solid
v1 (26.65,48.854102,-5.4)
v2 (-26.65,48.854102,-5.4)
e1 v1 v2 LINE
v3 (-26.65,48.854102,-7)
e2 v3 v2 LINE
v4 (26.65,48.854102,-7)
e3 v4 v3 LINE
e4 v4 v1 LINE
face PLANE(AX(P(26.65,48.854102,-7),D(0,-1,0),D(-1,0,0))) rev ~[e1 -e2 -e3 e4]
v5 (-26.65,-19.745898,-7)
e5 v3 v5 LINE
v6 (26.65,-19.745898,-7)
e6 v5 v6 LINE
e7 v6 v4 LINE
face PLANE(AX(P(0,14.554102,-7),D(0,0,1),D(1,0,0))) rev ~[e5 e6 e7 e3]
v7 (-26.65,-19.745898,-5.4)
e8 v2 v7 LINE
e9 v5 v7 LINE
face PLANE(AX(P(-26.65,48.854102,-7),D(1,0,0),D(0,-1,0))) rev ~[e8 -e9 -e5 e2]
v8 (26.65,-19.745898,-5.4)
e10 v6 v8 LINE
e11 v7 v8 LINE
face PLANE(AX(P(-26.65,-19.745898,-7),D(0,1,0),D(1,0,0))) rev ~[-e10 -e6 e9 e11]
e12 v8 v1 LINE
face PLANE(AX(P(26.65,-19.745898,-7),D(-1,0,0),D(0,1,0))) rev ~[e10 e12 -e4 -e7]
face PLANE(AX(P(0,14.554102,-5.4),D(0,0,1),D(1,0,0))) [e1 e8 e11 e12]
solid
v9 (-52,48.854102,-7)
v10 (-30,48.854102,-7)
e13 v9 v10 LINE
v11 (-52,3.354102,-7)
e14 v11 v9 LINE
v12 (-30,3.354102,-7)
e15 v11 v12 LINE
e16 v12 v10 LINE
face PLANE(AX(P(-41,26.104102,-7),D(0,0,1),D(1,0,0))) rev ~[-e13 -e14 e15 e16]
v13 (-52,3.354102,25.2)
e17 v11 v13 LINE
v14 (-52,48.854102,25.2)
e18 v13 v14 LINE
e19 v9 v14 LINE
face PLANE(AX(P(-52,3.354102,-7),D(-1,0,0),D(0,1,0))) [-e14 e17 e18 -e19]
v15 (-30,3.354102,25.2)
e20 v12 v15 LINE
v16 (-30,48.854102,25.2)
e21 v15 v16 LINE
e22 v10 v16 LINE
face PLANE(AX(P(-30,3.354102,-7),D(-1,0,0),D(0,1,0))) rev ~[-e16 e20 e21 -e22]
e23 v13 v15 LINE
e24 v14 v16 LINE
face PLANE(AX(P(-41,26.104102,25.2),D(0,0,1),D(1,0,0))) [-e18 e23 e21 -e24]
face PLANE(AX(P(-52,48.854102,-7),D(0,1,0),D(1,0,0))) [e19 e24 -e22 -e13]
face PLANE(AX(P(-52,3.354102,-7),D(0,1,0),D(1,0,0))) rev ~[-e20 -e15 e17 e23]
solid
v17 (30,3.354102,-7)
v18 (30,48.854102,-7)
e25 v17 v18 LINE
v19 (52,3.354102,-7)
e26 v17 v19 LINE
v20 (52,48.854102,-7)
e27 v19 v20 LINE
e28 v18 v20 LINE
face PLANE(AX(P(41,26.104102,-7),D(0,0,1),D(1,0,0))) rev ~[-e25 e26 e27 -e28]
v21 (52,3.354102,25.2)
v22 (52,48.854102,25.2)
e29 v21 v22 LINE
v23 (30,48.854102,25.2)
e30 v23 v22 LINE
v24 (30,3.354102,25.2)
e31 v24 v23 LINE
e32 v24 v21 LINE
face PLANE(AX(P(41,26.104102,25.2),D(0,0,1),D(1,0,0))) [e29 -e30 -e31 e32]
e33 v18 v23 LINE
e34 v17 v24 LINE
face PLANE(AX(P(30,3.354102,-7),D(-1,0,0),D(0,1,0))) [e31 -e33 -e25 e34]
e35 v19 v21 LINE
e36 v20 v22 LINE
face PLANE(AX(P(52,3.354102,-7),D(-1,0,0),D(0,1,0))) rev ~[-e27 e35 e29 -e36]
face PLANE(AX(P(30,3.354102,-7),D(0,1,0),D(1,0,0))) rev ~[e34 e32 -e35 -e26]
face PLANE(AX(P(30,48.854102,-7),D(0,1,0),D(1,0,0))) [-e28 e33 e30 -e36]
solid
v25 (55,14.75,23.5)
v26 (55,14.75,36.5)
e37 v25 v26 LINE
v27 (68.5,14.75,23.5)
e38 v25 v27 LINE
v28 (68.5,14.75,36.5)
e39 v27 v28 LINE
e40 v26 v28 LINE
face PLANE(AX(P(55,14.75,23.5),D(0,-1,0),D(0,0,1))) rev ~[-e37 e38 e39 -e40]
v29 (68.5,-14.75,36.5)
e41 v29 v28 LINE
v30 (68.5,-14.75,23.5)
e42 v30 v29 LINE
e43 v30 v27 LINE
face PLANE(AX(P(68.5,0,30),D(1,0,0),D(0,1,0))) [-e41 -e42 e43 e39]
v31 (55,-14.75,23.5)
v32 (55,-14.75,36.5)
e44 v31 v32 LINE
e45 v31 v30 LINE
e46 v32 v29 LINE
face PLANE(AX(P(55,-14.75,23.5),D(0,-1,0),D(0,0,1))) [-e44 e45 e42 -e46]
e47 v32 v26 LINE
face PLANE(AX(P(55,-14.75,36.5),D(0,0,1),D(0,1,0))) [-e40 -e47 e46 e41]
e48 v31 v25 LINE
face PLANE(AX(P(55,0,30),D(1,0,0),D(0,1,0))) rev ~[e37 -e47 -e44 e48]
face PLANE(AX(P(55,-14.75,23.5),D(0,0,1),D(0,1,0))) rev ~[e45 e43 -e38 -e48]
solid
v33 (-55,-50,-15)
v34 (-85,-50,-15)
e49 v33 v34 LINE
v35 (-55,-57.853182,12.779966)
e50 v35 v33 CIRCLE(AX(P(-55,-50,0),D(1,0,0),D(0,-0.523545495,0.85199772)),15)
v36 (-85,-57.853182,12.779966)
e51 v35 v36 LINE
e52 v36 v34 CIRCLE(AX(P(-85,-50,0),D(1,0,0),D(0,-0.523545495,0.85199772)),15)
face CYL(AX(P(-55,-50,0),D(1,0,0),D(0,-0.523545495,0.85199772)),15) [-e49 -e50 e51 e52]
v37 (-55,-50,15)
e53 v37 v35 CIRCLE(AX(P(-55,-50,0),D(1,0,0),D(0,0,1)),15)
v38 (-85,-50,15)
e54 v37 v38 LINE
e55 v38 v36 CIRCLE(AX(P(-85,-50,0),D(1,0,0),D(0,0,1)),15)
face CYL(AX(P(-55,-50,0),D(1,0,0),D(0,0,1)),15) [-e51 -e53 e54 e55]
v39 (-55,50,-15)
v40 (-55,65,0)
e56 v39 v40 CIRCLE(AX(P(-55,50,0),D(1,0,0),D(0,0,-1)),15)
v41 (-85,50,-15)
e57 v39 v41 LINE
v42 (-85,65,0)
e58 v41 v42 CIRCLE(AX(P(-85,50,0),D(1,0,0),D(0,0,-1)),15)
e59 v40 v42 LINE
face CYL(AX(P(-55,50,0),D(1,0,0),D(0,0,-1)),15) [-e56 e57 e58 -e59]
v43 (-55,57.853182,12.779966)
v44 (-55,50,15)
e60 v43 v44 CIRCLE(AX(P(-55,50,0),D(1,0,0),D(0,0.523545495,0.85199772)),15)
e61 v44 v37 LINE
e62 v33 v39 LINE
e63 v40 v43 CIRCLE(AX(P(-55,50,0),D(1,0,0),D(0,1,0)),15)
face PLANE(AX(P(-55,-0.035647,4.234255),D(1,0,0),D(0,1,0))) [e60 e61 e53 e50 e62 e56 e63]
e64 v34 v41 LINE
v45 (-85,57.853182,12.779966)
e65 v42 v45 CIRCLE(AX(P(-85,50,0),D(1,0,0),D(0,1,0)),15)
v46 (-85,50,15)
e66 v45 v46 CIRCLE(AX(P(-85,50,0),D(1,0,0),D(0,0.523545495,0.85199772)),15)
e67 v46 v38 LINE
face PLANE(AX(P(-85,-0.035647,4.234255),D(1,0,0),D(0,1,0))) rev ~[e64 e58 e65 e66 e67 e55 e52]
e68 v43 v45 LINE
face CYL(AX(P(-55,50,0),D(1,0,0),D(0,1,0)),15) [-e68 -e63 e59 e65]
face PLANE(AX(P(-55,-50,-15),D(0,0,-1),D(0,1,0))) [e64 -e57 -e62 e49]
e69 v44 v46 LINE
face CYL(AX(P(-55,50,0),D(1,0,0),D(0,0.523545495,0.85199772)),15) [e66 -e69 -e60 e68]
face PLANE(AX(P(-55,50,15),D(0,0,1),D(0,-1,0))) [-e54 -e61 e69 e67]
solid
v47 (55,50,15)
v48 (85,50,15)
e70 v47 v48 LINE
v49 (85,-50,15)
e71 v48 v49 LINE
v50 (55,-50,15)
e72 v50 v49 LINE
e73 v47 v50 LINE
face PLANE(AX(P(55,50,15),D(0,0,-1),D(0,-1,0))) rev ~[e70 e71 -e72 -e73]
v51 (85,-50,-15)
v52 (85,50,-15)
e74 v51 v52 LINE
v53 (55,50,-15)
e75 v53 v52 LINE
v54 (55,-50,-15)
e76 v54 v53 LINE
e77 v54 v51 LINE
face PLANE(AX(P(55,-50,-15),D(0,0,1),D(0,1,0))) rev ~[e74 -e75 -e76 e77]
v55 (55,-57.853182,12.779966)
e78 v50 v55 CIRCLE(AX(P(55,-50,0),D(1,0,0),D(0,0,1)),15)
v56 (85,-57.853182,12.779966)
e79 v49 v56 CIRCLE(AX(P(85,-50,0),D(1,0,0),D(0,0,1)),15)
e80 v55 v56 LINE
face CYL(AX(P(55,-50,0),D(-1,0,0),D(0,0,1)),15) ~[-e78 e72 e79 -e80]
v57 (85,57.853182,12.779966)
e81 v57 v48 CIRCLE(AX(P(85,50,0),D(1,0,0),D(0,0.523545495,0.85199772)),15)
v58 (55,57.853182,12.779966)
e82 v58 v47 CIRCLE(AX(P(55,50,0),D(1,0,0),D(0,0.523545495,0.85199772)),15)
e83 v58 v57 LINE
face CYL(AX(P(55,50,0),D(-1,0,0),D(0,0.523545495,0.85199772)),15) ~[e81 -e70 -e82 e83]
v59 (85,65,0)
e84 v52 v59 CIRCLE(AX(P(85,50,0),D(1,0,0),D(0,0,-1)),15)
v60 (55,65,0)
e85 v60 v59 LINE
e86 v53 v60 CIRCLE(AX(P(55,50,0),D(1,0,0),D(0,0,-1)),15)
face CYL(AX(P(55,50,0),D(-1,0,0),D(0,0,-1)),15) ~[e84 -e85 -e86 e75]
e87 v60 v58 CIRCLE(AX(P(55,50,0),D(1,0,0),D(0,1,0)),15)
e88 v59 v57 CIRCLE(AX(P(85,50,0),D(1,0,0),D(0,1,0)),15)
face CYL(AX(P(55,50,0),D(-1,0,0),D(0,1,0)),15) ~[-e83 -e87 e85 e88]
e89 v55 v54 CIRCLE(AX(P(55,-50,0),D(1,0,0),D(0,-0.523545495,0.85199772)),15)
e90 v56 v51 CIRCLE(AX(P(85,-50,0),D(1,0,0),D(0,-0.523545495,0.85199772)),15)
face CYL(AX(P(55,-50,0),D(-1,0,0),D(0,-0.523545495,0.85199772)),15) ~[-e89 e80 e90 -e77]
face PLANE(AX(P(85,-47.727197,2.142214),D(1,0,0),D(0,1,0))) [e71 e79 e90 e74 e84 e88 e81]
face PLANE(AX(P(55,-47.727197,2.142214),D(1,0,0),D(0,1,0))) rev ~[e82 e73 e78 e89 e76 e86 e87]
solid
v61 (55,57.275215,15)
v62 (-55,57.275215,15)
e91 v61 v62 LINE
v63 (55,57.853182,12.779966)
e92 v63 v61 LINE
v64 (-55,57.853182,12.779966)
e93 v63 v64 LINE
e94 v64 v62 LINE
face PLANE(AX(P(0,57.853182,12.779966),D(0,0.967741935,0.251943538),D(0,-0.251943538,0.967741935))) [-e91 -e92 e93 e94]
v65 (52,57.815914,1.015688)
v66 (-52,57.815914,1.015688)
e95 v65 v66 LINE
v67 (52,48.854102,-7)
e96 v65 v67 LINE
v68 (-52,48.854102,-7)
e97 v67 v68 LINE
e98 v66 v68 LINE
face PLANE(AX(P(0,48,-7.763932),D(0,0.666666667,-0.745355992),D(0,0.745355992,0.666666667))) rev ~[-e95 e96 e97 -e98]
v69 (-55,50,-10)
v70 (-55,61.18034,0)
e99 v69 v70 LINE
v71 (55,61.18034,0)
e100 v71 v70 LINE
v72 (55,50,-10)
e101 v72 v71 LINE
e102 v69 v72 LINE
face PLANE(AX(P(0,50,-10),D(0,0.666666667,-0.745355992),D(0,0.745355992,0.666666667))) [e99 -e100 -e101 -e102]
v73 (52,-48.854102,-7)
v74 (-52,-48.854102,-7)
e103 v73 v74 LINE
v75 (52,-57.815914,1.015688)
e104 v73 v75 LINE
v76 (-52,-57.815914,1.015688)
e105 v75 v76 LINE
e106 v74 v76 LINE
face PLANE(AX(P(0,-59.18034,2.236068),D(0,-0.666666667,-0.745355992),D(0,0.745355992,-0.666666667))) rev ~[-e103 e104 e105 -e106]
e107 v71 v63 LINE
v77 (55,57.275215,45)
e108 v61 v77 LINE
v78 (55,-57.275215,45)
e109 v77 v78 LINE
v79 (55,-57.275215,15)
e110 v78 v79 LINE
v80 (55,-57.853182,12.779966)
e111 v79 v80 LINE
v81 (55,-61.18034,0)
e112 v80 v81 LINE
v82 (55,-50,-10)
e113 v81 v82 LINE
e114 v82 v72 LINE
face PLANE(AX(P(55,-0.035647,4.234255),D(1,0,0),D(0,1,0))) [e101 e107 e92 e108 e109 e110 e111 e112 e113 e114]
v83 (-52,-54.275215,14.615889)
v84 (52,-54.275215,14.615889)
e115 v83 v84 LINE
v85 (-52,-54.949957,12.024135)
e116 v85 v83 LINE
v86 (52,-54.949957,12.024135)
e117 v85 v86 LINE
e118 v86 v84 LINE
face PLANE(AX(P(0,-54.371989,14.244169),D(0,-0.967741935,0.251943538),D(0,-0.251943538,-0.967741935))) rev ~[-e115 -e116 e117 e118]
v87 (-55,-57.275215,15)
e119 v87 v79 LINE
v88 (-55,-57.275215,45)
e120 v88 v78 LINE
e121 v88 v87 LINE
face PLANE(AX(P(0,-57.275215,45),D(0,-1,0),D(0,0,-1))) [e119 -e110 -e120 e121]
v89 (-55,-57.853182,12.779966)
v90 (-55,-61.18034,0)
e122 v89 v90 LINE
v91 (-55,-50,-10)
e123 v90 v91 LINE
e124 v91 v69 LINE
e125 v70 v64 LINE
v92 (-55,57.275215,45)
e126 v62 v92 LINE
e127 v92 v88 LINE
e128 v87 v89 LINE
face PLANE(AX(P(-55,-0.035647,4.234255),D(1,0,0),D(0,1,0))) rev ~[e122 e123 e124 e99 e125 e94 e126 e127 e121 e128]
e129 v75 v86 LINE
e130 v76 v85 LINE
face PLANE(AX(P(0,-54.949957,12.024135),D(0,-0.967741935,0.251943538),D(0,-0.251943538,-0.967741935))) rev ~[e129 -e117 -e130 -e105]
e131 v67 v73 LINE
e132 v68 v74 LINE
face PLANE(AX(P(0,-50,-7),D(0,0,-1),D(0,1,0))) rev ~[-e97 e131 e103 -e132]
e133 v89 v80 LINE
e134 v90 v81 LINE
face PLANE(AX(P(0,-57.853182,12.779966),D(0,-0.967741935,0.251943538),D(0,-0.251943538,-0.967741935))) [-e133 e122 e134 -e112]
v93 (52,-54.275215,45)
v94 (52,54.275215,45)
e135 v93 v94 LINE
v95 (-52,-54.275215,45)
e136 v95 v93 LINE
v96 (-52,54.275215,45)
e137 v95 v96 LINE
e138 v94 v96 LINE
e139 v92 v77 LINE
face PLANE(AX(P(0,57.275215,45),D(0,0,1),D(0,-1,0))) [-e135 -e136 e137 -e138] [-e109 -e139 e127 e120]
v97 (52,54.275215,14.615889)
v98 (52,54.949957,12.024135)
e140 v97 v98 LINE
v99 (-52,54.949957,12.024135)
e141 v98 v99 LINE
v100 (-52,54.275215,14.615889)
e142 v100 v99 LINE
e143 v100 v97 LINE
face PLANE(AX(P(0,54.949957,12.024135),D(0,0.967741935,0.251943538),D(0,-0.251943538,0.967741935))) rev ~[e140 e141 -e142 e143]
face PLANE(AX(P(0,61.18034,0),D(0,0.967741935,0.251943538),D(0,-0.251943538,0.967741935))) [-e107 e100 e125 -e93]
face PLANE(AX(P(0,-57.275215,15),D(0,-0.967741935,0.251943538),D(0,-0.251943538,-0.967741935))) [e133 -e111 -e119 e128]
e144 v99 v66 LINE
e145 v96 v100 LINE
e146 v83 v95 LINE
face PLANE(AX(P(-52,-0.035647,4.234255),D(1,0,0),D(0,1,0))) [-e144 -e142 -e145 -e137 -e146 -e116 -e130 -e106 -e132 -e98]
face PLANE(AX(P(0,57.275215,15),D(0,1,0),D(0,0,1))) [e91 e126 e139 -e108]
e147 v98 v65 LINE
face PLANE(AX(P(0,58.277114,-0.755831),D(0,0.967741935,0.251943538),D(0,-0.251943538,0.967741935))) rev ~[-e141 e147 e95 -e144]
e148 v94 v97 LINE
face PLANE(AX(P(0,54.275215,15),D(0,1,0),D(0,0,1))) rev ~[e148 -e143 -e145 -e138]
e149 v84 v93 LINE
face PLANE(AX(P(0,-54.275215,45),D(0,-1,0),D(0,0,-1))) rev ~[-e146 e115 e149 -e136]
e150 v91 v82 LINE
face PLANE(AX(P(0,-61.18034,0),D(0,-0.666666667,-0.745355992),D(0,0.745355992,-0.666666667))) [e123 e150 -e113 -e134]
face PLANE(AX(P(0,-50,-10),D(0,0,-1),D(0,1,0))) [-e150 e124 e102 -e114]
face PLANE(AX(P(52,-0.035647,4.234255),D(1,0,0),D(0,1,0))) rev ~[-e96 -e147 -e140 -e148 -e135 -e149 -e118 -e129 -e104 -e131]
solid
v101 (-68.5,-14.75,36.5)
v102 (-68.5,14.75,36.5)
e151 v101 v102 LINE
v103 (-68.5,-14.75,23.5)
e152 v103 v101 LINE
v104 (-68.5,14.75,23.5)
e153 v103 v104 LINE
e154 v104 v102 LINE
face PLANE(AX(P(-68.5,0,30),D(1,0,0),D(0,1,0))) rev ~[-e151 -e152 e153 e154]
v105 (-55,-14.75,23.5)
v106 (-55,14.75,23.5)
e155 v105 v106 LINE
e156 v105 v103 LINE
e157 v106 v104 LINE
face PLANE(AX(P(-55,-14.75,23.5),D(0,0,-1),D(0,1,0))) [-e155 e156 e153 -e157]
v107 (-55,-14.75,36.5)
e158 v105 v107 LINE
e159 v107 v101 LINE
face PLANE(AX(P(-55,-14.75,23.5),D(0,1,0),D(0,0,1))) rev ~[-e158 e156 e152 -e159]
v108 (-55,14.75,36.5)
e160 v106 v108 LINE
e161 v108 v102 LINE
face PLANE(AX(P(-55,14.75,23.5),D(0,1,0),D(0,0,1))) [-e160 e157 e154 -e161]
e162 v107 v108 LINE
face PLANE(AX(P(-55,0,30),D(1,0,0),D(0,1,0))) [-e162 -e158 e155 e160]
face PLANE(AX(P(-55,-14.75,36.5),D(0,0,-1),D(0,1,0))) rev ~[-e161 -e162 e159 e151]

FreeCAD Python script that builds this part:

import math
import FreeCAD as App
import Part
import Sketcher

V = App.Vector


def faces_at(feature, points):
    """Names of the faces that lie closest to the given points."""
    faces = feature.Shape.Faces
    near = lambda p: min(range(len(faces)), key=lambda i: faces[i].distToShape(Part.Vertex(*p))[0])
    return sorted({f"Face{near(p) + 1}" for p in points})

doc = App.newDocument("Part")
params = doc.addObject("Spreadsheet::Sheet", "Params")
for row, (alias, value) in enumerate([
    ("sketch1_width", "100 mm"),
    ("sketch1_height", "30 mm"),
    ("sketch1_length", "15 mm"),
    ("pad1_length", "110 mm"),
    ("thickness_wall", "3 mm"),
    ("sketch2_radius", "15 mm"),
    ("sketch2_width", "100 mm"),
    ("pad2_length", "30 mm"),
    ("sketch3_radius", "15 mm"),
    ("sketch3_width", "100 mm"),
    ("pad3_length", "30 mm"),
    ("sketch4_width", "22 mm"),
    ("sketch4_height", "45.5 mm"),
    ("pad4_length", "32.2 mm"),
    ("sketch5_width", "22 mm"),
    ("sketch5_height", "45.5 mm"),
    ("pad5_length", "32.2 mm"),
    ("sketch6_width", "53.3 mm"),
    ("sketch6_height", "68.6 mm"),
    ("pad6_length", "1.6 mm"),
    ("sketch7_height", "13 mm"),
    ("sketch7_width", "29.5 mm"),
    ("pad7_length", "13.5 mm"),
    ("sketch8_height", "13 mm"),
    ("sketch8_width", "29.5 mm"),
    ("pad8_length", "13.5 mm"),
], start=1):
    params.set(f"A{row}", alias)
    params.set(f"B{row}", "=" + value)
    params.setAlias(f"B{row}", alias)

body = doc.addObject("PartDesign::Body", "Body")

# Sketch on YZ plane
sketch1 = body.newObject("Sketcher::SketchObject", "Sketch")
sketch1.AttachmentSupport = (doc.getObject("YZ_Plane"), [""])
sketch1.MapMode = "FlatFace"
sketch1.addGeometry(Part.LineSegment(V(57.3, 15, 0), V(57.3, 45, 0)), False)
sketch1.addGeometry(Part.LineSegment(V(57.3, 45, 0), V(-57.3, 45, 0)), False)
sketch1.addGeometry(Part.LineSegment(V(-57.3, 45, 0), V(-57.3, 15, 0)), False)
sketch1.addGeometry(Part.LineSegment(V(-57.3, 15, 0), V(-57.9, 12.8, 0)), False)
sketch1.addGeometry(Part.LineSegment(V(-57.9, 12.8, 0), V(-61.2, 0, 0)), False)
sketch1.addGeometry(Part.LineSegment(V(-61.2, 0, 0), V(-50, -10, 0)), False)
sketch1.addGeometry(Part.LineSegment(V(-50, -10, 0), V(50, -10, 0)), False)
sketch1.addGeometry(Part.LineSegment(V(50, -10, 0), V(61.2, 0, 0)), False)
sketch1.addGeometry(Part.LineSegment(V(61.2, 0, 0), V(57.9, 12.8, 0)), False)
sketch1.addGeometry(Part.LineSegment(V(57.9, 12.8, 0), V(57.3, 15, 0)), False)
sketch1.addConstraint(Sketcher.Constraint("Coincident", 0, 2, 1, 1))
sketch1.addConstraint(Sketcher.Constraint("Coincident", 1, 2, 2, 1))
sketch1.addConstraint(Sketcher.Constraint("Coincident", 2, 2, 3, 1))
sketch1.addConstraint(Sketcher.Constraint("Coincident", 3, 2, 4, 1))
sketch1.addConstraint(Sketcher.Constraint("Coincident", 4, 2, 5, 1))
sketch1.addConstraint(Sketcher.Constraint("Coincident", 5, 2, 6, 1))
sketch1.addConstraint(Sketcher.Constraint("Coincident", 6, 2, 7, 1))
sketch1.addConstraint(Sketcher.Constraint("Coincident", 7, 2, 8, 1))
sketch1.addConstraint(Sketcher.Constraint("Coincident", 8, 2, 9, 1))
sketch1.addConstraint(Sketcher.Constraint("Coincident", 9, 2, 0, 1))
sketch1.addConstraint(Sketcher.Constraint("Vertical", 0))
sketch1.addConstraint(Sketcher.Constraint("Horizontal", 1))
sketch1.addConstraint(Sketcher.Constraint("Vertical", 2))
sketch1.addConstraint(Sketcher.Constraint("Horizontal", 6))
sketch1.addConstraint(Sketcher.Constraint("Symmetric", 4, 2, 7, 2, -1, 1))
sketch1.addConstraint(Sketcher.Constraint("Symmetric", 3, 2, 8, 2, -2))
sketch1.addConstraint(Sketcher.Constraint("Symmetric", 2, 2, 9, 2, -2))
sketch1.addConstraint(Sketcher.Constraint("PointOnObject", 4, 2, -1))
sketch1.addConstraint(Sketcher.Constraint("Parallel", 3, 4))
sketch1.addConstraint(Sketcher.Constraint("Equal", 5, 7))
sketch1.addConstraint(Sketcher.Constraint("DistanceX", 6, 1, 6, 2, 100.0))
sketch1.addConstraint(Sketcher.Constraint("DistanceY", 0, 1, 0, 2, 30.0))
sketch1.addConstraint(Sketcher.Constraint("Distance", 5, 15.0))
sketch1.addConstraint(Sketcher.Constraint("DistanceY", -1, 1, 0, 2, 45.0))
sketch1.addConstraint(Sketcher.Constraint("DistanceY", 5, 2, -1, 1, 10.0))
sketch1.addConstraint(Sketcher.Constraint("DistanceX", 1, 2, 1, 1, 114.55043))
sketch1.addConstraint(Sketcher.Constraint("Distance", 3, 2.294035))
sketch1.setExpression("Constraints[20]", "Params.sketch1_width")
sketch1.setExpression("Constraints[21]", "Params.sketch1_height")
sketch1.setExpression("Constraints[22]", "Params.sketch1_length")
pad1 = body.newObject("PartDesign::Pad", "Pad")
pad1.Profile = sketch1
pad1.setExpression("Length", "Params.pad1_length")
pad1.Midplane = True
doc.recompute()

thickness = body.newObject("PartDesign::Thickness", "Thickness")
thickness.Base = (pad1, faces_at(pad1, [(0, 0, 45)]))
thickness.setExpression("Value", "Params.thickness_wall")
thickness.Reversed = True
thickness.Join = "Intersection"
body2 = doc.addObject("PartDesign::Body", "Body001")

# Sketch on YZ plane
sketch2 = body2.newObject("Sketcher::SketchObject", "Sketch001")
sketch2.AttachmentSupport = (doc.getObject("YZ_Plane001"), [""])
sketch2.MapMode = "FlatFace"
sketch2.AttachmentOffset = App.Placement(V(0, 0, 55), App.Rotation())
sketch2.addGeometry(Part.ArcOfCircle(Part.Circle(V(50, 0, 0), V(0, 0, 1), 15), math.radians(58), math.radians(90)), False)
sketch2.addGeometry(Part.LineSegment(V(50, 15, 0), V(-50, 15, 0)), False)
sketch2.addGeometry(Part.ArcOfCircle(Part.Circle(V(-50, 0, 0), V(0, 0, 1), 15), math.radians(90), math.radians(122)), False)
sketch2.addGeometry(Part.ArcOfCircle(Part.Circle(V(-50, 0, 0), V(0, 0, 1), 15), math.radians(122), math.radians(270)), False)
sketch2.addGeometry(Part.LineSegment(V(-50, -15, 0), V(50, -15, 0)), False)
sketch2.addGeometry(Part.ArcOfCircle(Part.Circle(V(50, 0, 0), V(0, 0, 1), 15), math.radians(-90), math.radians(0)), False)
sketch2.addGeometry(Part.ArcOfCircle(Part.Circle(V(50, 0, 0), V(0, 0, 1), 15), math.radians(0), math.radians(58)), False)
sketch2.addConstraint(Sketcher.Constraint("Tangent", 0, 2, 1, 1))
sketch2.addConstraint(Sketcher.Constraint("Tangent", 1, 2, 2, 1))
sketch2.addConstraint(Sketcher.Constraint("Tangent", 2, 2, 3, 1))
sketch2.addConstraint(Sketcher.Constraint("Tangent", 3, 2, 4, 1))
sketch2.addConstraint(Sketcher.Constraint("Tangent", 4, 2, 5, 1))
sketch2.addConstraint(Sketcher.Constraint("Tangent", 5, 2, 6, 1))
sketch2.addConstraint(Sketcher.Constraint("Tangent", 6, 2, 0, 1))
sketch2.addConstraint(Sketcher.Constraint("Horizontal", 1))
sketch2.addConstraint(Sketcher.Constraint("Horizontal", 4))
sketch2.addConstraint(Sketcher.Constraint("Coincident", 5, 3, 0, 3))
sketch2.addConstraint(Sketcher.Constraint("Equal", 0, 2))
sketch2.addConstraint(Sketcher.Constraint("Symmetric", 0, 3, 2, 3, -1, 1))
sketch2.addConstraint(Sketcher.Constraint("PointOnObject", 5, 2, -1))
sketch2.addConstraint(Sketcher.Constraint("Horizontal", 2, 2, 6, 2))
sketch2.addConstraint(Sketcher.Constraint("Radius", 0, 15.0))
sketch2.addConstraint(Sketcher.Constraint("DistanceX", 1, 2, 1, 1, 100.0))
sketch2.addConstraint(Sketcher.Constraint("DistanceX", 2, 2, -1, 1, 57.853182))
sketch2.setExpression("Constraints[14]", "Params.sketch2_radius")
sketch2.setExpression("Constraints[15]", "Params.sketch2_width")
pad2 = body2.newObject("PartDesign::Pad", "Pad001")
pad2.Profile = sketch2
pad2.setExpression("Length", "Params.pad2_length")
body3 = doc.addObject("PartDesign::Body", "Body002")

# Sketch on YZ plane
sketch3 = body3.newObject("Sketcher::SketchObject", "Sketch002")
sketch3.AttachmentSupport = (doc.getObject("YZ_Plane002"), [""])
sketch3.MapMode = "FlatFace"
sketch3.AttachmentOffset = App.Placement(V(0, 0, -55), App.Rotation())
sketch3.addGeometry(Part.LineSegment(V(50, 15, 0), V(-50, 15, 0)), False)
sketch3.addGeometry(Part.ArcOfCircle(Part.Circle(V(-50, 0, 0), V(0, 0, 1), 15), math.radians(90), math.radians(122)), False)
sketch3.addGeometry(Part.ArcOfCircle(Part.Circle(V(-50, 0, 0), V(0, 0, 1), 15), math.radians(122), math.radians(270)), False)
sketch3.addGeometry(Part.LineSegment(V(-50, -15, 0), V(50, -15, 0)), False)
sketch3.addGeometry(Part.ArcOfCircle(Part.Circle(V(50, 0, 0), V(0, 0, 1), 15), math.radians(-90), math.radians(0)), False)
sketch3.addGeometry(Part.ArcOfCircle(Part.Circle(V(50, 0, 0), V(0, 0, 1), 15), math.radians(0), math.radians(58)), False)
sketch3.addGeometry(Part.ArcOfCircle(Part.Circle(V(50, 0, 0), V(0, 0, 1), 15), math.radians(58), math.radians(90)), False)
sketch3.addConstraint(Sketcher.Constraint("Tangent", 0, 2, 1, 1))
sketch3.addConstraint(Sketcher.Constraint("Tangent", 1, 2, 2, 1))
sketch3.addConstraint(Sketcher.Constraint("Tangent", 2, 2, 3, 1))
sketch3.addConstraint(Sketcher.Constraint("Tangent", 3, 2, 4, 1))
sketch3.addConstraint(Sketcher.Constraint("Tangent", 4, 2, 5, 1))
sketch3.addConstraint(Sketcher.Constraint("Tangent", 5, 2, 6, 1))
sketch3.addConstraint(Sketcher.Constraint("Tangent", 6, 2, 0, 1))
sketch3.addConstraint(Sketcher.Constraint("Horizontal", 0))
sketch3.addConstraint(Sketcher.Constraint("Horizontal", 3))
sketch3.addConstraint(Sketcher.Constraint("Coincident", 6, 3, 4, 3))
sketch3.addConstraint(Sketcher.Constraint("Equal", 1, 2))
sketch3.addConstraint(Sketcher.Constraint("Symmetric", 1, 3, 4, 3, -1, 1))
sketch3.addConstraint(Sketcher.Constraint("PointOnObject", 4, 2, -1))
sketch3.addConstraint(Sketcher.Constraint("Horizontal", 1, 2, 5, 2))
sketch3.addConstraint(Sketcher.Constraint("Radius", 1, 15.0))
sketch3.addConstraint(Sketcher.Constraint("DistanceX", 0, 2, 0, 1, 100.0))
sketch3.addConstraint(Sketcher.Constraint("DistanceX", 1, 2, -1, 1, 57.853182))
sketch3.setExpression("Constraints[14]", "Params.sketch3_radius")
sketch3.setExpression("Constraints[15]", "Params.sketch3_width")
pad3 = body3.newObject("PartDesign::Pad", "Pad002")
pad3.Profile = sketch3
pad3.setExpression("Length", "Params.pad3_length")
pad3.Reversed = True
body4 = doc.addObject("PartDesign::Body", "Body003")

# Sketch on XY plane
sketch4 = body4.newObject("Sketcher::SketchObject", "Sketch003")
sketch4.AttachmentSupport = (doc.getObject("XY_Plane003"), [""])
sketch4.MapMode = "FlatFace"
sketch4.AttachmentOffset = App.Placement(V(0, 0, -7), App.Rotation())
sketch4.addGeometry(Part.LineSegment(V(-52, 49, 0), V(-52, 3, 0)), False)
sketch4.addGeometry(Part.LineSegment(V(-52, 3, 0), V(-30, 3, 0)), False)
sketch4.addGeometry(Part.LineSegment(V(-30, 3, 0), V(-30, 49, 0)), False)
sketch4.addGeometry(Part.LineSegment(V(-30, 49, 0), V(-52, 49, 0)), False)
sketch4.addConstraint(Sketcher.Constraint("Coincident", 0, 2, 1, 1))
sketch4.addConstraint(Sketcher.Constraint("Coincident", 1, 2, 2, 1))
sketch4.addConstraint(Sketcher.Constraint("Coincident", 2, 2, 3, 1))
sketch4.addConstraint(Sketcher.Constraint("Coincident", 3, 2, 0, 1))
sketch4.addConstraint(Sketcher.Constraint("Vertical", 0))
sketch4.addConstraint(Sketcher.Constraint("Horizontal", 1))
sketch4.addConstraint(Sketcher.Constraint("Vertical", 2))
sketch4.addConstraint(Sketcher.Constraint("Horizontal", 3))
sketch4.addConstraint(Sketcher.Constraint("DistanceX", 1, 1, 1, 2, 22.0))
sketch4.addConstraint(Sketcher.Constraint("DistanceY", 0, 2, 0, 1, 45.5))
sketch4.addConstraint(Sketcher.Constraint("DistanceX", 0, 2, -1, 1, 52.0))
sketch4.addConstraint(Sketcher.Constraint("DistanceY", -1, 1, 0, 2, 3.354102))
sketch4.setExpression("Constraints[8]", "Params.sketch4_width")
sketch4.setExpression("Constraints[9]", "Params.sketch4_height")
pad4 = body4.newObject("PartDesign::Pad", "Pad003")
pad4.Profile = sketch4
pad4.setExpression("Length", "Params.pad4_length")
body5 = doc.addObject("PartDesign::Body", "Body004")

# Sketch on XY plane
sketch5 = body5.newObject("Sketcher::SketchObject", "Sketch004")
sketch5.AttachmentSupport = (doc.getObject("XY_Plane004"), [""])
sketch5.MapMode = "FlatFace"
sketch5.AttachmentOffset = App.Placement(V(0, 0, -7), App.Rotation())
sketch5.addGeometry(Part.LineSegment(V(30, 49, 0), V(30, 3, 0)), False)
sketch5.addGeometry(Part.LineSegment(V(30, 3, 0), V(52, 3, 0)), False)
sketch5.addGeometry(Part.LineSegment(V(52, 3, 0), V(52, 49, 0)), False)
sketch5.addGeometry(Part.LineSegment(V(52, 49, 0), V(30, 49, 0)), False)
sketch5.addConstraint(Sketcher.Constraint("Coincident", 0, 2, 1, 1))
sketch5.addConstraint(Sketcher.Constraint("Coincident", 1, 2, 2, 1))
sketch5.addConstraint(Sketcher.Constraint("Coincident", 2, 2, 3, 1))
sketch5.addConstraint(Sketcher.Constraint("Coincident", 3, 2, 0, 1))
sketch5.addConstraint(Sketcher.Constraint("Vertical", 0))
sketch5.addConstraint(Sketcher.Constraint("Horizontal", 1))
sketch5.addConstraint(Sketcher.Constraint("Vertical", 2))
sketch5.addConstraint(Sketcher.Constraint("Horizontal", 3))
sketch5.addConstraint(Sketcher.Constraint("DistanceX", 1, 1, 1, 2, 22.0))
sketch5.addConstraint(Sketcher.Constraint("DistanceY", 0, 2, 0, 1, 45.5))
sketch5.addConstraint(Sketcher.Constraint("DistanceX", -1, 1, 0, 2, 30.0))
sketch5.addConstraint(Sketcher.Constraint("DistanceY", -1, 1, 0, 2, 3.354102))
sketch5.setExpression("Constraints[8]", "Params.sketch5_width")
sketch5.setExpression("Constraints[9]", "Params.sketch5_height")
pad5 = body5.newObject("PartDesign::Pad", "Pad004")
pad5.Profile = sketch5
pad5.setExpression("Length", "Params.pad5_length")
body6 = doc.addObject("PartDesign::Body", "Body005")

# Sketch on XY plane
sketch6 = body6.newObject("Sketcher::SketchObject", "Sketch005")
sketch6.AttachmentSupport = (doc.getObject("XY_Plane005"), [""])
sketch6.MapMode = "FlatFace"
sketch6.AttachmentOffset = App.Placement(V(0, 0, -7), App.Rotation())
sketch6.addGeometry(Part.LineSegment(V(-27, 49, 0), V(-27, -20, 0)), False)
sketch6.addGeometry(Part.LineSegment(V(-27, -20, 0), V(27, -20, 0)), False)
sketch6.addGeometry(Part.LineSegment(V(27, -20, 0), V(27, 49, 0)), False)
sketch6.addGeometry(Part.LineSegment(V(27, 49, 0), V(-27, 49, 0)), False)
sketch6.addConstraint(Sketcher.Constraint("Coincident", 0, 2, 1, 1))
sketch6.addConstraint(Sketcher.Constraint("Coincident", 1, 2, 2, 1))
sketch6.addConstraint(Sketcher.Constraint("Coincident", 2, 2, 3, 1))
sketch6.addConstraint(Sketcher.Constraint("Coincident", 3, 2, 0, 1))
sketch6.addConstraint(Sketcher.Constraint("Vertical", 0))
sketch6.addConstraint(Sketcher.Constraint("Horizontal", 1))
sketch6.addConstraint(Sketcher.Constraint("Vertical", 2))
sketch6.addConstraint(Sketcher.Constraint("Horizontal", 3))
sketch6.addConstraint(Sketcher.Constraint("DistanceX", 1, 1, 1, 2, 53.3))
sketch6.addConstraint(Sketcher.Constraint("DistanceY", 0, 2, 0, 1, 68.6))
sketch6.addConstraint(Sketcher.Constraint("DistanceX", 0, 2, -1, 1, 26.65))
sketch6.addConstraint(Sketcher.Constraint("DistanceY", 0, 2, -1, 1, 19.745898))
sketch6.setExpression("Constraints[8]", "Params.sketch6_width")
sketch6.setExpression("Constraints[9]", "Params.sketch6_height")
pad6 = body6.newObject("PartDesign::Pad", "Pad005")
pad6.Profile = sketch6
pad6.setExpression("Length", "Params.pad6_length")
body7 = doc.addObject("PartDesign::Body", "Body006")

# Sketch on YZ plane
sketch7 = body7.newObject("Sketcher::SketchObject", "Sketch006")
sketch7.AttachmentSupport = (doc.getObject("YZ_Plane006"), [""])
sketch7.MapMode = "FlatFace"
sketch7.AttachmentOffset = App.Placement(V(0, 0, 55), App.Rotation())
sketch7.addGeometry(Part.LineSegment(V(-15, 36, 0), V(-15, 24, 0)), False)
sketch7.addGeometry(Part.LineSegment(V(-15, 24, 0), V(15, 24, 0)), False)
sketch7.addGeometry(Part.LineSegment(V(15, 24, 0), V(15, 36, 0)), False)
sketch7.addGeometry(Part.LineSegment(V(15, 36, 0), V(-15, 36, 0)), False)
sketch7.addConstraint(Sketcher.Constraint("Coincident", 0, 2, 1, 1))
sketch7.addConstraint(Sketcher.Constraint("Coincident", 1, 2, 2, 1))
sketch7.addConstraint(Sketcher.Constraint("Coincident", 2, 2, 3, 1))
sketch7.addConstraint(Sketcher.Constraint("Coincident", 3, 2, 0, 1))
sketch7.addConstraint(Sketcher.Constraint("Vertical", 0))
sketch7.addConstraint(Sketcher.Constraint("Horizontal", 1))
sketch7.addConstraint(Sketcher.Constraint("Vertical", 2))
sketch7.addConstraint(Sketcher.Constraint("Horizontal", 3))
sketch7.addConstraint(Sketcher.Constraint("DistanceY", 0, 2, 0, 1, 13.0))
sketch7.addConstraint(Sketcher.Constraint("DistanceX", 1, 1, 1, 2, 29.5))
sketch7.addConstraint(Sketcher.Constraint("DistanceY", -1, 1, 0, 2, 23.5))
sketch7.addConstraint(Sketcher.Constraint("DistanceX", 0, 2, -1, 1, 14.75))
sketch7.setExpression("Constraints[8]", "Params.sketch7_height")
sketch7.setExpression("Constraints[9]", "Params.sketch7_width")
pad7 = body7.newObject("PartDesign::Pad", "Pad006")
pad7.Profile = sketch7
pad7.setExpression("Length", "Params.pad7_length")
body8 = doc.addObject("PartDesign::Body", "Body007")

# Sketch on YZ plane
sketch8 = body8.newObject("Sketcher::SketchObject", "Sketch007")
sketch8.AttachmentSupport = (doc.getObject("YZ_Plane007"), [""])
sketch8.MapMode = "FlatFace"
sketch8.AttachmentOffset = App.Placement(V(0, 0, -55), App.Rotation())
sketch8.addGeometry(Part.LineSegment(V(-15, 36, 0), V(-15, 24, 0)), False)
sketch8.addGeometry(Part.LineSegment(V(-15, 24, 0), V(15, 24, 0)), False)
sketch8.addGeometry(Part.LineSegment(V(15, 24, 0), V(15, 36, 0)), False)
sketch8.addGeometry(Part.LineSegment(V(15, 36, 0), V(-15, 36, 0)), False)
sketch8.addConstraint(Sketcher.Constraint("Coincident", 0, 2, 1, 1))
sketch8.addConstraint(Sketcher.Constraint("Coincident", 1, 2, 2, 1))
sketch8.addConstraint(Sketcher.Constraint("Coincident", 2, 2, 3, 1))
sketch8.addConstraint(Sketcher.Constraint("Coincident", 3, 2, 0, 1))
sketch8.addConstraint(Sketcher.Constraint("Vertical", 0))
sketch8.addConstraint(Sketcher.Constraint("Horizontal", 1))
sketch8.addConstraint(Sketcher.Constraint("Vertical", 2))
sketch8.addConstraint(Sketcher.Constraint("Horizontal", 3))
sketch8.addConstraint(Sketcher.Constraint("DistanceY", 0, 2, 0, 1, 13.0))
sketch8.addConstraint(Sketcher.Constraint("DistanceX", 1, 1, 1, 2, 29.5))
sketch8.addConstraint(Sketcher.Constraint("DistanceY", -1, 1, 0, 2, 23.5))
sketch8.addConstraint(Sketcher.Constraint("DistanceX", 0, 2, -1, 1, 14.75))
sketch8.setExpression("Constraints[8]", "Params.sketch8_height")
sketch8.setExpression("Constraints[9]", "Params.sketch8_width")
pad8 = body8.newObject("PartDesign::Pad", "Pad007")
pad8.Profile = sketch8
pad8.setExpression("Length", "Params.pad8_length")
pad8.Reversed = True

doc.recompute()
